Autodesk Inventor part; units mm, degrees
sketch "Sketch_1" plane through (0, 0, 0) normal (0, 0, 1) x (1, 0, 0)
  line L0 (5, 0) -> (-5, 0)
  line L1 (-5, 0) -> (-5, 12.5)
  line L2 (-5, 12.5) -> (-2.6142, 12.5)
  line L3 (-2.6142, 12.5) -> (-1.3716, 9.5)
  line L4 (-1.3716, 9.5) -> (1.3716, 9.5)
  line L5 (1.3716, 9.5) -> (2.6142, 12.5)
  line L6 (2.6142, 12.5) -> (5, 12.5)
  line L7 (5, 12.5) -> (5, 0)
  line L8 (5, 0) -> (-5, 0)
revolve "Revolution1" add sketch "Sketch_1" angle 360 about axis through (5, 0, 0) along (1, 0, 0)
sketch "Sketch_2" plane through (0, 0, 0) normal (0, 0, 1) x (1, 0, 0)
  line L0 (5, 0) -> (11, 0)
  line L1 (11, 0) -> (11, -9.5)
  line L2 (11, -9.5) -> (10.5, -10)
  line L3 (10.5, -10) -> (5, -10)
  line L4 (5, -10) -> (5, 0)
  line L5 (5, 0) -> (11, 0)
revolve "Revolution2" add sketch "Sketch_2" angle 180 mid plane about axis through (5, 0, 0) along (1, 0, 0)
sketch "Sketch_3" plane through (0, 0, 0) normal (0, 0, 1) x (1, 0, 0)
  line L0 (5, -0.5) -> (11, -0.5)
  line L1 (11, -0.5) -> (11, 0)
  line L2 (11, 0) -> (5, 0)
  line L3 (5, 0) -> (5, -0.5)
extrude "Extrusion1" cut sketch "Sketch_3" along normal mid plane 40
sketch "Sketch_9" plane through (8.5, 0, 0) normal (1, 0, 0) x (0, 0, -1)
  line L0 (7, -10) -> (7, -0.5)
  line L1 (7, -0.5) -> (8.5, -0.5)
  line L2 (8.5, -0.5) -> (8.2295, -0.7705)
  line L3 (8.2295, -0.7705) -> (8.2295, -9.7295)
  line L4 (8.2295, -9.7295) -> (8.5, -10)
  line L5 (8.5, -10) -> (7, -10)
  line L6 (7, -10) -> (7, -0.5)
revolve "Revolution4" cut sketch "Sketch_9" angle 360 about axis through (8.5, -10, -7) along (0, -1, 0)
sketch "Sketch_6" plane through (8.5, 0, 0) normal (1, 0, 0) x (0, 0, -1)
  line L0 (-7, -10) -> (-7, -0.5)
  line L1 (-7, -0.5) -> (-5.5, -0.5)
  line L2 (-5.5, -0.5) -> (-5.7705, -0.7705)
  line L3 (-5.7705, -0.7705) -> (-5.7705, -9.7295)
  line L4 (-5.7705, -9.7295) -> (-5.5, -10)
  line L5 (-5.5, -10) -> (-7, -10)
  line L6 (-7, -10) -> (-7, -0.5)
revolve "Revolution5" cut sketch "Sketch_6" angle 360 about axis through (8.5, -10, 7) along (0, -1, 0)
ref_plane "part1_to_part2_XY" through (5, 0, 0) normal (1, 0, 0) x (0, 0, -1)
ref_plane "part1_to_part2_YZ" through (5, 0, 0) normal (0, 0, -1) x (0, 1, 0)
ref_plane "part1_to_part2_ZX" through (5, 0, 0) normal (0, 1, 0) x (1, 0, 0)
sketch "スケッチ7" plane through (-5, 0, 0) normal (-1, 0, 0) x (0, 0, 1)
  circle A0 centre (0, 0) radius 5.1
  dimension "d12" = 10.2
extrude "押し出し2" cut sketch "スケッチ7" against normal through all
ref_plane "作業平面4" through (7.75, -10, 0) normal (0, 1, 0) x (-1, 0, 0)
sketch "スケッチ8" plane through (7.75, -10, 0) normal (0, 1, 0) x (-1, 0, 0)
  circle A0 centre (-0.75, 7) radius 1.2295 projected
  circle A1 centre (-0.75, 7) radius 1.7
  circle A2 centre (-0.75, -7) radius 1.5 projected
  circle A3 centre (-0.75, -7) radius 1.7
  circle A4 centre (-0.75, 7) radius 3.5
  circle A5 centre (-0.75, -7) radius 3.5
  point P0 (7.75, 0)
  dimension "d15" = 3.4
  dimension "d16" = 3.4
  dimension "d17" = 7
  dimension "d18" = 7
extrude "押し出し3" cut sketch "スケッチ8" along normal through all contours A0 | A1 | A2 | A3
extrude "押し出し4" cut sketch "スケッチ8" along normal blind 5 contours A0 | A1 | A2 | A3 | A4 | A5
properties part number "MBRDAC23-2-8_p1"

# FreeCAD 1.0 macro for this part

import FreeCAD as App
import Part
import Sketcher
Q = App.Units.Quantity

doc = App.newDocument("Part")
body = doc.addObject("PartDesign::Body", "Body")

# Sketch on XY plane
sketch1 = doc.addObject("Sketcher::SketchObject", "Sketch")
body.addObject(sketch1)
sketch1.AttachmentSupport = (doc.XY_Plane, [""])
sketch1.MapMode = "FlatFace"
sketch1.addGeometry(Part.LineSegment(App.Vector(-5, 0, 0), App.Vector(5, 0, 0)), False)
sketch1.addGeometry(Part.LineSegment(App.Vector(5, 0, 0), App.Vector(5, 12.5, 0)), False)
sketch1.addGeometry(Part.LineSegment(App.Vector(5, 12.5, 0), App.Vector(2.6, 12.5, 0)), False)
sketch1.addGeometry(Part.LineSegment(App.Vector(2.6, 12.5, 0), App.Vector(1.4, 9.5, 0)), False)
sketch1.addGeometry(Part.LineSegment(App.Vector(1.4, 9.5, 0), App.Vector(-1.4, 9.5, 0)), False)
sketch1.addGeometry(Part.LineSegment(App.Vector(-1.4, 9.5, 0), App.Vector(-2.6, 12.5, 0)), False)
sketch1.addGeometry(Part.LineSegment(App.Vector(-2.6, 12.5, 0), App.Vector(-5, 12.5, 0)), False)
sketch1.addGeometry(Part.LineSegment(App.Vector(-5, 12.5, 0), App.Vector(-5, 0, 0)), False)
sketch1.addConstraint(Sketcher.Constraint("Coincident", 0, 2, 1, 1))
sketch1.addConstraint(Sketcher.Constraint("Coincident", 1, 2, 2, 1))
sketch1.addConstraint(Sketcher.Constraint("Coincident", 2, 2, 3, 1))
sketch1.addConstraint(Sketcher.Constraint("Coincident", 3, 2, 4, 1))
sketch1.addConstraint(Sketcher.Constraint("Coincident", 4, 2, 5, 1))
sketch1.addConstraint(Sketcher.Constraint("Coincident", 5, 2, 6, 1))
sketch1.addConstraint(Sketcher.Constraint("Coincident", 6, 2, 7, 1))
sketch1.addConstraint(Sketcher.Constraint("Coincident", 7, 2, 0, 1))
sketch1.addConstraint(Sketcher.Constraint("Horizontal", 0))
sketch1.addConstraint(Sketcher.Constraint("Vertical", 1))
sketch1.addConstraint(Sketcher.Constraint("Horizontal", 2))
sketch1.addConstraint(Sketcher.Constraint("Horizontal", 4))
sketch1.addConstraint(Sketcher.Constraint("Horizontal", 6))
sketch1.addConstraint(Sketcher.Constraint("Vertical", 7))
sketch1.addConstraint(Sketcher.Constraint("Symmetric", 0, 2, 7, 2, -1, 1))
sketch1.addConstraint(Sketcher.Constraint("Symmetric", 2, 2, 5, 2, -2))
sketch1.addConstraint(Sketcher.Constraint("Equal", 3, 5))
sketch1.addConstraint(Sketcher.Constraint("DistanceX", 0, 1, 0, 2, Q("10 mm")))
sketch1.addConstraint(Sketcher.Constraint("DistanceY", 1, 1, 1, 2, Q("12.5 mm")))
sketch1.addConstraint(Sketcher.Constraint("Angle", 3, Q("-112.4993 deg")))
sketch1.addConstraint(Sketcher.Constraint("DistanceY", 3, 2, 2, 2, Q("3 mm")))
sketch1.addConstraint(Sketcher.Constraint("DistanceX", 2, 2, 2, 1, Q("2.3858 mm")))
revolution = doc.addObject("PartDesign::Revolution", "Revolution")
body.addObject(revolution)
revolution.Profile = sketch1
revolution.ReferenceAxis = (sketch1, ["H_Axis"])
revolution.Angle = 360

# Sketch on XY plane
sketch2 = doc.addObject("Sketcher::SketchObject", "Sketch001")
body.addObject(sketch2)
sketch2.AttachmentSupport = (doc.XY_Plane, [""])
sketch2.MapMode = "FlatFace"
sketch2.addGeometry(Part.LineSegment(App.Vector(11, 0, 0), App.Vector(5, 0, 0)), False)
sketch2.addGeometry(Part.LineSegment(App.Vector(5, 0, 0), App.Vector(5, -10, 0)), False)
sketch2.addGeometry(Part.LineSegment(App.Vector(5, -10, 0), App.Vector(10.5, -10, 0)), False)
sketch2.addGeometry(Part.LineSegment(App.Vector(10.5, -10, 0), App.Vector(11, -9.5, 0)), False)
sketch2.addGeometry(Part.LineSegment(App.Vector(11, -9.5, 0), App.Vector(11, 0, 0)), False)
sketch2.addConstraint(Sketcher.Constraint("Coincident", 0, 2, 1, 1))
sketch2.addConstraint(Sketcher.Constraint("Coincident", 1, 2, 2, 1))
sketch2.addConstraint(Sketcher.Constraint("Coincident", 2, 2, 3, 1))
sketch2.addConstraint(Sketcher.Constraint("Coincident", 3, 2, 4, 1))
sketch2.addConstraint(Sketcher.Constraint("Coincident", 4, 2, 0, 1))
sketch2.addConstraint(Sketcher.Constraint("Horizontal", 0))
sketch2.addConstraint(Sketcher.Constraint("Vertical", 1))
sketch2.addConstraint(Sketcher.Constraint("Horizontal", 2))
sketch2.addConstraint(Sketcher.Constraint("Vertical", 4))
sketch2.addConstraint(Sketcher.Constraint("PointOnObject", 0, 2, -1))
sketch2.addConstraint(Sketcher.Constraint("DistanceX", 0, 2, 0, 1, Q("6 mm")))
sketch2.addConstraint(Sketcher.Constraint("DistanceY", 1, 2, 1, 1, Q("10 mm")))
sketch2.addConstraint(Sketcher.Constraint("Angle", 3, Q("45 deg")))
sketch2.addConstraint(Sketcher.Constraint("DistanceX", 2, 1, 2, 2, Q("5.5 mm")))
sketch2.addConstraint(Sketcher.Constraint("DistanceX", -1, 1, 0, 2, Q("5 mm")))
revolution2 = doc.addObject("PartDesign::Revolution", "Revolution001")
body.addObject(revolution2)
revolution2.Profile = sketch2
revolution2.ReferenceAxis = (sketch2, ["H_Axis"])
revolution2.Angle = 180
revolution2.Midplane = True

# Sketch on XY plane
sketch3 = doc.addObject("Sketcher::SketchObject", "Sketch002")
body.addObject(sketch3)
sketch3.AttachmentSupport = (doc.XY_Plane, [""])
sketch3.MapMode = "FlatFace"
sketch3.addGeometry(Part.LineSegment(App.Vector(5, 0, 0), App.Vector(5, -0.5, 0)), False)
sketch3.addGeometry(Part.LineSegment(App.Vector(5, -0.5, 0), App.Vector(11, -0.5, 0)), False)
sketch3.addGeometry(Part.LineSegment(App.Vector(11, -0.5, 0), App.Vector(11, 0, 0)), False)
sketch3.addGeometry(Part.LineSegment(App.Vector(11, 0, 0), App.Vector(5, 0, 0)), False)
sketch3.addConstraint(Sketcher.Constraint("Coincident", 0, 2, 1, 1))
sketch3.addConstraint(Sketcher.Constraint("Coincident", 1, 2, 2, 1))
sketch3.addConstraint(Sketcher.Constraint("Coincident", 2, 2, 3, 1))
sketch3.addConstraint(Sketcher.Constraint("Coincident", 3, 2, 0, 1))
sketch3.addConstraint(Sketcher.Constraint("Vertical", 0))
sketch3.addConstraint(Sketcher.Constraint("Horizontal", 1))
sketch3.addConstraint(Sketcher.Constraint("Vertical", 2))
sketch3.addConstraint(Sketcher.Constraint("Horizontal", 3))
sketch3.addConstraint(Sketcher.Constraint("PointOnObject", 2, 2, -1))
sketch3.addConstraint(Sketcher.Constraint("DistanceX", 1, 1, 1, 2, Q("6 mm")))
sketch3.addConstraint(Sketcher.Constraint("DistanceY", 0, 2, 0, 1, Q("0.5 mm")))
sketch3.addConstraint(Sketcher.Constraint("DistanceX", -1, 1, 0, 2, Q("5 mm")))
pocket1 = doc.addObject("PartDesign::Pocket", "Pocket")
body.addObject(pocket1)
pocket1.Profile = sketch3
pocket1.Length = 40
pocket1.Midplane = True

# Sketch on YZ plane
sketch4 = doc.addObject("Sketcher::SketchObject", "Sketch003")
body.addObject(sketch4)
sketch4.AttachmentSupport = (doc.YZ_Plane, [""])
sketch4.MapMode = "FlatFace"
sketch4.AttachmentOffset = App.Placement(App.Vector(0, 0, 8.5), App.Rotation())
sketch4.addGeometry(Part.LineSegment(App.Vector(-0.5, -7, 0), App.Vector(-10, -7, 0)), False)
sketch4.addGeometry(Part.LineSegment(App.Vector(-10, -7, 0), App.Vector(-10, -8.5, 0)), False)
sketch4.addGeometry(Part.LineSegment(App.Vector(-10, -8.5, 0), App.Vector(-9.73, -8.23, 0)), False)
sketch4.addGeometry(Part.LineSegment(App.Vector(-9.73, -8.23, 0), App.Vector(-0.77, -8.23, 0)), False)
sketch4.addGeometry(Part.LineSegment(App.Vector(-0.77, -8.23, 0), App.Vector(-0.5, -8.5, 0)), False)
sketch4.addGeometry(Part.LineSegment(App.Vector(-0.5, -8.5, 0), App.Vector(-0.5, -7, 0)), False)
sketch4.addGeometry(Part.LineSegment(App.Vector(-0.5, -7, 0), App.Vector(-10, -7, 0)), True)  # axis
sketch4.addConstraint(Sketcher.Constraint("Coincident", 0, 2, 1, 1))
sketch4.addConstraint(Sketcher.Constraint("Coincident", 1, 2, 2, 1))
sketch4.addConstraint(Sketcher.Constraint("Coincident", 2, 2, 3, 1))
sketch4.addConstraint(Sketcher.Constraint("Coincident", 3, 2, 4, 1))
sketch4.addConstraint(Sketcher.Constraint("Coincident", 4, 2, 5, 1))
sketch4.addConstraint(Sketcher.Constraint("Coincident", 5, 2, 0, 1))
sketch4.addConstraint(Sketcher.Constraint("Horizontal", 0))
sketch4.addConstraint(Sketcher.Constraint("Vertical", 1))
sketch4.addConstraint(Sketcher.Constraint("Horizontal", 3))
sketch4.addConstraint(Sketcher.Constraint("Vertical", 5))
sketch4.addConstraint(Sketcher.Constraint("Horizontal", 6))
sketch4.addConstraint(Sketcher.Constraint("Coincident", 6, 1, 5, 2))
sketch4.addConstraint(Sketcher.Constraint("Perpendicular", 2, 4))
sketch4.addConstraint(Sketcher.Constraint("Horizontal", 1, 2, 4, 2))
sketch4.addConstraint(Sketcher.Constraint("Vertical", 1, 2, 6, 2))
sketch4.addConstraint(Sketcher.Constraint("Equal", 2, 4))
sketch4.addConstraint(Sketcher.Constraint("DistanceX", 0, 2, 0, 1, Q("9.5 mm")))
sketch4.addConstraint(Sketcher.Constraint("DistanceY", 1, 2, 1, 1, Q("1.5 mm")))
sketch4.addConstraint(Sketcher.Constraint("DistanceX", 0, 2, -1, 1, Q("10 mm")))
sketch4.addConstraint(Sketcher.Constraint("DistanceY", 0, 2, -1, 1, Q("7 mm")))
sketch4.addConstraint(Sketcher.Constraint("DistanceX", 3, 1, 3, 2, Q("8.959 mm")))
groove = doc.addObject("PartDesign::Groove", "Groove")
body.addObject(groove)
groove.Profile = sketch4
groove.ReferenceAxis = (sketch4, ["Axis0"])
groove.Angle = 360

# Sketch on YZ plane
sketch5 = doc.addObject("Sketcher::SketchObject", "Sketch004")
body.addObject(sketch5)
sketch5.AttachmentSupport = (doc.YZ_Plane, [""])
sketch5.MapMode = "FlatFace"
sketch5.AttachmentOffset = App.Placement(App.Vector(0, 0, 8.5), App.Rotation())
sketch5.addGeometry(Part.LineSegment(App.Vector(-0.5, 7, 0), App.Vector(-10, 7, 0)), False)
sketch5.addGeometry(Part.LineSegment(App.Vector(-10, 7, 0), App.Vector(-10, 5.5, 0)), False)
sketch5.addGeometry(Part.LineSegment(App.Vector(-10, 5.5, 0), App.Vector(-9.73, 5.77, 0)), False)
sketch5.addGeometry(Part.LineSegment(App.Vector(-9.73, 5.77, 0), App.Vector(-0.77, 5.77, 0)), False)
sketch5.addGeometry(Part.LineSegment(App.Vector(-0.77, 5.77, 0), App.Vector(-0.5, 5.5, 0)), False)
sketch5.addGeometry(Part.LineSegment(App.Vector(-0.5, 5.5, 0), App.Vector(-0.5, 7, 0)), False)
sketch5.addGeometry(Part.LineSegment(App.Vector(-0.5, 7, 0), App.Vector(-10, 7, 0)), True)  # axis
sketch5.addConstraint(Sketcher.Constraint("Coincident", 0, 2, 1, 1))
sketch5.addConstraint(Sketcher.Constraint("Coincident", 1, 2, 2, 1))
sketch5.addConstraint(Sketcher.Constraint("Coincident", 2, 2, 3, 1))
sketch5.addConstraint(Sketcher.Constraint("Coincident", 3, 2, 4, 1))
sketch5.addConstraint(Sketcher.Constraint("Coincident", 4, 2, 5, 1))
sketch5.addConstraint(Sketcher.Constraint("Coincident", 5, 2, 0, 1))
sketch5.addConstraint(Sketcher.Constraint("Horizontal", 0))
sketch5.addConstraint(Sketcher.Constraint("Vertical", 1))
sketch5.addConstraint(Sketcher.Constraint("Horizontal", 3))
sketch5.addConstraint(Sketcher.Constraint("Vertical", 5))
sketch5.addConstraint(Sketcher.Constraint("Horizontal", 6))
sketch5.addConstraint(Sketcher.Constraint("Coincident", 6, 1, 5, 2))
sketch5.addConstraint(Sketcher.Constraint("Perpendicular", 2, 4))
sketch5.addConstraint(Sketcher.Constraint("Horizontal", 1, 2, 4, 2))
sketch5.addConstraint(Sketcher.Constraint("Vertical", 1, 2, 6, 2))
sketch5.addConstraint(Sketcher.Constraint("Equal", 2, 4))
sketch5.addConstraint(Sketcher.Constraint("DistanceX", 0, 2, 0, 1, Q("9.5 mm")))
sketch5.addConstraint(Sketcher.Constraint("DistanceY", 1, 2, 1, 1, Q("1.5 mm")))
sketch5.addConstraint(Sketcher.Constraint("DistanceX", 0, 2, -1, 1, Q("10 mm")))
sketch5.addConstraint(Sketcher.Constraint("DistanceY", -1, 1, 0, 2, Q("7 mm")))
sketch5.addConstraint(Sketcher.Constraint("DistanceX", 3, 1, 3, 2, Q("8.959 mm")))
groove2 = doc.addObject("PartDesign::Groove", "Groove001")
body.addObject(groove2)
groove2.Profile = sketch5
groove2.ReferenceAxis = (sketch5, ["Axis0"])
groove2.Angle = 360

# Sketch on YZ plane
sketch6 = doc.addObject("Sketcher::SketchObject", "Sketch005")
body.addObject(sketch6)
sketch6.AttachmentSupport = (doc.YZ_Plane, [""])
sketch6.MapMode = "FlatFace"
sketch6.AttachmentOffset = App.Placement(App.Vector(0, 0, -5), App.Rotation())
sketch6.addGeometry(Part.Circle(App.Vector(0, 0, 0), App.Vector(0, 0, 1), 5), False)
sketch6.addConstraint(Sketcher.Constraint("Coincident", 0, 3, -1, 1))
sketch6.addConstraint(Sketcher.Constraint("Diameter", 0, Q("10.2 mm")))
pocket2 = doc.addObject("PartDesign::Pocket", "Pocket001")
body.addObject(pocket2)
pocket2.Profile = sketch6
pocket2.Type = "ThroughAll"
pocket2.Reversed = True

# Sketch on XZ plane
sketch7 = doc.addObject("Sketcher::SketchObject", "Sketch006")
body.addObject(sketch7)
sketch7.AttachmentSupport = (doc.XZ_Plane, [""])
sketch7.MapMode = "FlatFace"
sketch7.AttachmentOffset = App.Placement(App.Vector(0, 0, 10), App.Rotation())
sketch7.addGeometry(Part.Circle(App.Vector(8.5, 7, 0), App.Vector(0, 0, 1), 1.7), False)
sketch7.addGeometry(Part.Circle(App.Vector(8.5, -7, 0), App.Vector(0, 0, 1), 1.7), False)
sketch7.addConstraint(Sketcher.Constraint("Equal", 0, 1))
sketch7.addConstraint(Sketcher.Constraint("Symmetric", 0, 3, 1, 3, -1))
sketch7.addConstraint(Sketcher.Constraint("Diameter", 0, Q("3.4 mm")))
sketch7.addConstraint(Sketcher.Constraint("DistanceY", -1, 1, 0, 3, Q("7 mm")))
sketch7.addConstraint(Sketcher.Constraint("DistanceX", -1, 1, 0, 3, Q("8.5 mm")))
pocket3 = doc.addObject("PartDesign::Pocket", "Pocket002")
body.addObject(pocket3)
pocket3.Profile = sketch7
pocket3.Type = "ThroughAll"

# Sketch on XZ plane
sketch8 = doc.addObject("Sketcher::SketchObject", "Sketch007")
body.addObject(sketch8)
sketch8.AttachmentSupport = (doc.XZ_Plane, [""])
sketch8.MapMode = "FlatFace"
sketch8.AttachmentOffset = App.Placement(App.Vector(0, 0, 10), App.Rotation())
sketch8.addGeometry(Part.Circle(App.Vector(8.5, 7, 0), App.Vector(0, 0, 1), 3.5), False)
sketch8.addGeometry(Part.Circle(App.Vector(8.5, -7, 0), App.Vector(0, 0, 1), 3.5), False)
sketch8.addConstraint(Sketcher.Constraint("Equal", 0, 1))
sketch8.addConstraint(Sketcher.Constraint("Symmetric", 0, 3, 1, 3, -1))
sketch8.addConstraint(Sketcher.Constraint("Diameter", 0, Q("7 mm")))
sketch8.addConstraint(Sketcher.Constraint("DistanceY", -1, 1, 0, 3, Q("7 mm")))
sketch8.addConstraint(Sketcher.Constraint("DistanceX", -1, 1, 0, 3, Q("8.5 mm")))
pocket4 = doc.addObject("PartDesign::Pocket", "Pocket003")
body.addObject(pocket4)
pocket4.Profile = sketch8
pocket4.Length = 5

doc.recompute()
